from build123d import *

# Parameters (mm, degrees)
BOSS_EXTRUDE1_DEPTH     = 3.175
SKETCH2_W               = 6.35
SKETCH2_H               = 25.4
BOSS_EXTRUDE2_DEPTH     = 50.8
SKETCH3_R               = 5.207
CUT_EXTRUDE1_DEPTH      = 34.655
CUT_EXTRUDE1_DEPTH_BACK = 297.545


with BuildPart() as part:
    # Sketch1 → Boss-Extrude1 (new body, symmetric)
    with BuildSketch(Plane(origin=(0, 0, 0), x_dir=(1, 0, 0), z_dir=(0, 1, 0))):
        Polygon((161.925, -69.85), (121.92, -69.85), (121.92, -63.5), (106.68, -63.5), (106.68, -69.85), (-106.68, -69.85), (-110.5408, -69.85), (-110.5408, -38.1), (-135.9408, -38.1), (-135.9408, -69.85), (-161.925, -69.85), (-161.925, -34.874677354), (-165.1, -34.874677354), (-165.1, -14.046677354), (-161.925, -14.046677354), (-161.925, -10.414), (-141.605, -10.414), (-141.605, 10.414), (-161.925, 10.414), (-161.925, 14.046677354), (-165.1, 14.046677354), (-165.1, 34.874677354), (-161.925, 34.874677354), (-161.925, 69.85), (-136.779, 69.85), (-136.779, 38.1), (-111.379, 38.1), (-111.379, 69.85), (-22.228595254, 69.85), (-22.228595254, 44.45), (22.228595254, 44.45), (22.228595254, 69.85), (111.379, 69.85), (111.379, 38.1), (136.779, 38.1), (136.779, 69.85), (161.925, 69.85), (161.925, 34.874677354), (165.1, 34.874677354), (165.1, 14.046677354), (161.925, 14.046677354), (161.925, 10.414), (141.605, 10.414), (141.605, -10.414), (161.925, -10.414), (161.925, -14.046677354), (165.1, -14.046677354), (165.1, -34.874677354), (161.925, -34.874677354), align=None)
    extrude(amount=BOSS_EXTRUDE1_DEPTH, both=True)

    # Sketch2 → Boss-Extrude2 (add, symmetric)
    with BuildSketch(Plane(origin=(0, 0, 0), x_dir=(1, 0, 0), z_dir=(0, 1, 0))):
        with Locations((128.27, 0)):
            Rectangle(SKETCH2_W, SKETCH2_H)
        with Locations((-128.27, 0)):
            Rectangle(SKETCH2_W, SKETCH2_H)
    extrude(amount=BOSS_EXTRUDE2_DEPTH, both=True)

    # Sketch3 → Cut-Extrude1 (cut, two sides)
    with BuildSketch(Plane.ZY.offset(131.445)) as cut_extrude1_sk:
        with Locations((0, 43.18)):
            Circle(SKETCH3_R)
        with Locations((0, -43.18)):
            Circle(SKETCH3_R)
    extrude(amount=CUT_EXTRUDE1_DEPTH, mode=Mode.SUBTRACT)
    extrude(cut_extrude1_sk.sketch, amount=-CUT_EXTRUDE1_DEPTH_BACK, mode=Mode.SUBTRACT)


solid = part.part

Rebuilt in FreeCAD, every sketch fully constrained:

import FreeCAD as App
import Part
import Sketcher
from FreeCAD import Vector
Q = App.Units.Quantity


def add_polygon(sketch, points):
    """Adds a closed chain of lines whose ends are joined by coincident constraints."""
    first, n = sketch.GeometryCount, len(points)
    for a, b in zip(points, points[1:] + points[:1]):
        sketch.addGeometry(Part.LineSegment(App.Vector(*a, 0), App.Vector(*b, 0)), False)
    for i in range(n):
        sketch.addConstraint(Sketcher.Constraint("Coincident", first + i, 2, first + (i + 1) % n, 1))

doc = App.newDocument("Part")
body = doc.addObject("PartDesign::Body", "Body")

# Sketch on XZ plane
sketch1 = body.newObject("Sketcher::SketchObject", "Sketch")
sketch1.AttachmentSupport = (doc.getObject("XZ_Plane"), [""])
sketch1.MapMode = "FlatFace"
add_polygon(sketch1, [(121.9, 69.8), (161.9, 69.8), (161.9, 34.9), (165.1, 34.9), (165.1, 14), (161.9, 14), (161.9, 10.4), (141.6, 10.4), (141.6, -10.4), (161.9, -10.4), (161.9, -14), (165.1, -14), (165.1, -34.9), (161.9, -34.9), (161.9, -69.8), (136.8, -69.8), (136.8, -38.1), (111.4, -38.1), (111.4, -69.8), (22.2, -69.8), (22.2, -44.5), (-22.2, -44.5), (-22.2, -69.8), (-111.4, -69.8), (-111.4, -38.1), (-136.8, -38.1), (-136.8, -69.8), (-161.9, -69.8), (-161.9, -34.9), (-165.1, -34.9), (-165.1, -14), (-161.9, -14), (-161.9, -10.4), (-141.6, -10.4), (-141.6, 10.4), (-161.9, 10.4), (-161.9, 14), (-165.1, 14), (-165.1, 34.9), (-161.9, 34.9), (-161.9, 69.8), (-135.9, 69.8), (-135.9, 38.1), (-110.5, 38.1), (-110.5, 69.8), (106.7, 69.8), (106.7, 63.5), (121.9, 63.5)])  # lines 0-47
sketch1.addConstraint([
    Sketcher.Constraint("Horizontal", 0),
    Sketcher.Constraint("Vertical", 1),
    Sketcher.Constraint("Horizontal", 2),
    Sketcher.Constraint("Vertical", 3),
    Sketcher.Constraint("Horizontal", 4),
    Sketcher.Constraint("Vertical", 5),
    Sketcher.Constraint("Horizontal", 6),
    Sketcher.Constraint("Vertical", 7),
    Sketcher.Constraint("Horizontal", 8),
    Sketcher.Constraint("Vertical", 9),
    Sketcher.Constraint("Horizontal", 10),
    Sketcher.Constraint("Vertical", 11),
    Sketcher.Constraint("Horizontal", 12),
    Sketcher.Constraint("Vertical", 13),
    Sketcher.Constraint("Horizontal", 14),
    Sketcher.Constraint("Vertical", 15),
    Sketcher.Constraint("Horizontal", 16),
    Sketcher.Constraint("Vertical", 17),
    Sketcher.Constraint("Horizontal", 18),
    Sketcher.Constraint("Vertical", 19),
    Sketcher.Constraint("Horizontal", 20),
    Sketcher.Constraint("Vertical", 21),
    Sketcher.Constraint("Horizontal", 22),
    Sketcher.Constraint("Vertical", 23),
    Sketcher.Constraint("Horizontal", 24),
    Sketcher.Constraint("Vertical", 25),
    Sketcher.Constraint("Horizontal", 26),
    Sketcher.Constraint("Vertical", 27),
    Sketcher.Constraint("Horizontal", 28),
    Sketcher.Constraint("Vertical", 29),
    Sketcher.Constraint("Horizontal", 30),
    Sketcher.Constraint("Vertical", 31),
    Sketcher.Constraint("Horizontal", 32),
    Sketcher.Constraint("Vertical", 33),
    Sketcher.Constraint("Horizontal", 34),
    Sketcher.Constraint("Vertical", 35),
    Sketcher.Constraint("Horizontal", 36),
    Sketcher.Constraint("Vertical", 37),
    Sketcher.Constraint("Horizontal", 38),
    Sketcher.Constraint("Vertical", 39),
    Sketcher.Constraint("Horizontal", 40),
    Sketcher.Constraint("Vertical", 41),
    Sketcher.Constraint("Horizontal", 42),
    Sketcher.Constraint("Vertical", 43),
    Sketcher.Constraint("Horizontal", 44),
    Sketcher.Constraint("Vertical", 45),
    Sketcher.Constraint("Horizontal", 46),
    Sketcher.Constraint("Vertical", 47),
    Sketcher.Constraint("Symmetric", 0, 2, 26, 2, -1, 1),
    Sketcher.Constraint("Symmetric", 2, 2, 28, 2, -1, 1),
    Sketcher.Constraint("Symmetric", 4, 2, 30, 2, -1, 1),
    Sketcher.Constraint("Symmetric", 6, 2, 32, 2, -1, 1),
    Sketcher.Constraint("Symmetric", 8, 2, 34, 2, -1, 1),
    Sketcher.Constraint("Symmetric", 10, 2, 36, 2, -1, 1),
    Sketcher.Constraint("Symmetric", 12, 2, 38, 2, -1, 1),
    Sketcher.Constraint("Symmetric", 18, 2, 21, 2, -2),
    Sketcher.Constraint("Symmetric", 16, 2, 23, 2, -2),
    Sketcher.Constraint("Symmetric", 14, 2, 25, 2, -2),
    Sketcher.Constraint("Symmetric", 12, 2, 27, 2, -2),
    Sketcher.Constraint("Symmetric", 10, 2, 29, 2, -2),
    Sketcher.Constraint("Symmetric", 8, 2, 31, 2, -2),
    Sketcher.Constraint("Horizontal", 14, 2, 17, 2),
    Sketcher.Constraint("Horizontal", 0, 2, 39, 2),
    Sketcher.Constraint("Horizontal", 40, 2, 43, 2),
    Sketcher.Constraint("Vertical", 1, 2, 4, 2),
    Sketcher.Constraint("Equal", 24, 42),
    Sketcher.Constraint("Equal", 3, 7),
    Sketcher.Constraint("Equal", 42, 19),
    Sketcher.Constraint("Equal", 25, 41),
    Sketcher.Constraint("DistanceX", 16, 2, 16, 1, Q("1 in")),
    Sketcher.Constraint("DistanceX", 6, 2, 6, 1, Q("0.8 in")),
    Sketcher.Constraint("DistanceX", 46, 1, 46, 2, Q("0.6 in")),
    Sketcher.Constraint("DistanceX", 14, 2, 14, 1, Q("0.99 in")),
    Sketcher.Constraint("DistanceY", 3, 2, 3, 1, Q("0.82 in")),
    Sketcher.Constraint("DistanceY", 15, 1, 15, 2, Q("1.25 in")),
    Sketcher.Constraint("DistanceY", 45, 2, 45, 1, Q("0.25 in")),
    Sketcher.Constraint("DistanceX", -1, 1, 2, 2, Q("6.5 in")),
    Sketcher.Constraint("DistanceY", 15, 2, -1, 1, Q("1.5 in")),
    Sketcher.Constraint("DistanceX", -1, 1, 44, 2, Q("4.2 in")),
    Sketcher.Constraint("DistanceX", 0, 1, 0, 2, Q("1.575 in")),
    Sketcher.Constraint("DistanceX", 40, 1, 40, 2, Q("1.023 in")),
    Sketcher.Constraint("DistanceX", 20, 2, 20, 1, Q("44.457191 mm")),
    Sketcher.Constraint("DistanceY", 1, 2, 1, 1, Q("34.975323 mm")),
])
pad1 = body.newObject("PartDesign::Pad", "Pad")
pad1.Profile = sketch1
pad1.Length = Q("0.25 in")
pad1.Midplane = True

# Sketch on XZ plane
sketch2 = body.newObject("Sketcher::SketchObject", "Sketch001")
sketch2.AttachmentSupport = (doc.getObject("XZ_Plane"), [""])
sketch2.MapMode = "FlatFace"
add_polygon(sketch2, [(125, -13), (125, 13), (131, 13), (131, -13)])  # lines 0-3
add_polygon(sketch2, [(-131, -13), (-131, 13), (-125, 13), (-125, -13)])  # lines 4-7
sketch2.addConstraint([
    Sketcher.Constraint("Vertical", 0),
    Sketcher.Constraint("Horizontal", 1),
    Sketcher.Constraint("Vertical", 2),
    Sketcher.Constraint("Horizontal", 3),
    Sketcher.Constraint("Vertical", 4),
    Sketcher.Constraint("Horizontal", 5),
    Sketcher.Constraint("Vertical", 6),
    Sketcher.Constraint("Horizontal", 7),
    Sketcher.Constraint("Symmetric", 2, 2, 4, 2, -1, 1),
    Sketcher.Constraint("Symmetric", 0, 2, 6, 2, -1, 1),
    Sketcher.Constraint("Horizontal", 1, 2, 4, 2),
    Sketcher.Constraint("DistanceY", 0, 1, 0, 2, Q("1 in")),
    Sketcher.Constraint("DistanceX", 1, 1, 1, 2, Q("0.25 in")),
    Sketcher.Constraint("DistanceX", 4, 2, 0, 2, Q("10.1 in")),
])
pad2 = body.newObject("PartDesign::Pad", "Pad001")
pad2.Profile = sketch2
pad2.Length = Q("4 in")
pad2.Midplane = True

# Sketch on YZ plane
sketch3 = body.newObject("Sketcher::SketchObject", "Sketch002")
sketch3.AttachmentSupport = (doc.getObject("YZ_Plane"), [""])
sketch3.MapMode = "FlatFace"
sketch3.AttachmentOffset = App.Placement(Vector(0, 0, -5.175 * 25.4), App.Rotation())
sketch3.addGeometry([
    Part.Circle(Vector(43, 0, 0), Vector(0, 0, 1), 5),
    Part.Circle(Vector(-43, 0, 0), Vector(0, 0, 1), 5),
], False)
sketch3.addConstraint([
    Sketcher.Constraint("Equal", 0, 1),
    Sketcher.Constraint("Symmetric", 0, 3, 1, 3, -1, 1),
    Sketcher.Constraint("PointOnObject", 0, 3, -1),
    Sketcher.Constraint("Diameter", 0, Q("0.41 in")),
    Sketcher.Constraint("DistanceX", -1, 1, 0, 3, Q("1.7 in")),
])
pocket1 = body.newObject("PartDesign::Pocket", "Pocket")
pocket1.Profile = sketch3
pocket1.Type = "ThroughAll"
pocket1.Midplane = True

doc.recompute()
